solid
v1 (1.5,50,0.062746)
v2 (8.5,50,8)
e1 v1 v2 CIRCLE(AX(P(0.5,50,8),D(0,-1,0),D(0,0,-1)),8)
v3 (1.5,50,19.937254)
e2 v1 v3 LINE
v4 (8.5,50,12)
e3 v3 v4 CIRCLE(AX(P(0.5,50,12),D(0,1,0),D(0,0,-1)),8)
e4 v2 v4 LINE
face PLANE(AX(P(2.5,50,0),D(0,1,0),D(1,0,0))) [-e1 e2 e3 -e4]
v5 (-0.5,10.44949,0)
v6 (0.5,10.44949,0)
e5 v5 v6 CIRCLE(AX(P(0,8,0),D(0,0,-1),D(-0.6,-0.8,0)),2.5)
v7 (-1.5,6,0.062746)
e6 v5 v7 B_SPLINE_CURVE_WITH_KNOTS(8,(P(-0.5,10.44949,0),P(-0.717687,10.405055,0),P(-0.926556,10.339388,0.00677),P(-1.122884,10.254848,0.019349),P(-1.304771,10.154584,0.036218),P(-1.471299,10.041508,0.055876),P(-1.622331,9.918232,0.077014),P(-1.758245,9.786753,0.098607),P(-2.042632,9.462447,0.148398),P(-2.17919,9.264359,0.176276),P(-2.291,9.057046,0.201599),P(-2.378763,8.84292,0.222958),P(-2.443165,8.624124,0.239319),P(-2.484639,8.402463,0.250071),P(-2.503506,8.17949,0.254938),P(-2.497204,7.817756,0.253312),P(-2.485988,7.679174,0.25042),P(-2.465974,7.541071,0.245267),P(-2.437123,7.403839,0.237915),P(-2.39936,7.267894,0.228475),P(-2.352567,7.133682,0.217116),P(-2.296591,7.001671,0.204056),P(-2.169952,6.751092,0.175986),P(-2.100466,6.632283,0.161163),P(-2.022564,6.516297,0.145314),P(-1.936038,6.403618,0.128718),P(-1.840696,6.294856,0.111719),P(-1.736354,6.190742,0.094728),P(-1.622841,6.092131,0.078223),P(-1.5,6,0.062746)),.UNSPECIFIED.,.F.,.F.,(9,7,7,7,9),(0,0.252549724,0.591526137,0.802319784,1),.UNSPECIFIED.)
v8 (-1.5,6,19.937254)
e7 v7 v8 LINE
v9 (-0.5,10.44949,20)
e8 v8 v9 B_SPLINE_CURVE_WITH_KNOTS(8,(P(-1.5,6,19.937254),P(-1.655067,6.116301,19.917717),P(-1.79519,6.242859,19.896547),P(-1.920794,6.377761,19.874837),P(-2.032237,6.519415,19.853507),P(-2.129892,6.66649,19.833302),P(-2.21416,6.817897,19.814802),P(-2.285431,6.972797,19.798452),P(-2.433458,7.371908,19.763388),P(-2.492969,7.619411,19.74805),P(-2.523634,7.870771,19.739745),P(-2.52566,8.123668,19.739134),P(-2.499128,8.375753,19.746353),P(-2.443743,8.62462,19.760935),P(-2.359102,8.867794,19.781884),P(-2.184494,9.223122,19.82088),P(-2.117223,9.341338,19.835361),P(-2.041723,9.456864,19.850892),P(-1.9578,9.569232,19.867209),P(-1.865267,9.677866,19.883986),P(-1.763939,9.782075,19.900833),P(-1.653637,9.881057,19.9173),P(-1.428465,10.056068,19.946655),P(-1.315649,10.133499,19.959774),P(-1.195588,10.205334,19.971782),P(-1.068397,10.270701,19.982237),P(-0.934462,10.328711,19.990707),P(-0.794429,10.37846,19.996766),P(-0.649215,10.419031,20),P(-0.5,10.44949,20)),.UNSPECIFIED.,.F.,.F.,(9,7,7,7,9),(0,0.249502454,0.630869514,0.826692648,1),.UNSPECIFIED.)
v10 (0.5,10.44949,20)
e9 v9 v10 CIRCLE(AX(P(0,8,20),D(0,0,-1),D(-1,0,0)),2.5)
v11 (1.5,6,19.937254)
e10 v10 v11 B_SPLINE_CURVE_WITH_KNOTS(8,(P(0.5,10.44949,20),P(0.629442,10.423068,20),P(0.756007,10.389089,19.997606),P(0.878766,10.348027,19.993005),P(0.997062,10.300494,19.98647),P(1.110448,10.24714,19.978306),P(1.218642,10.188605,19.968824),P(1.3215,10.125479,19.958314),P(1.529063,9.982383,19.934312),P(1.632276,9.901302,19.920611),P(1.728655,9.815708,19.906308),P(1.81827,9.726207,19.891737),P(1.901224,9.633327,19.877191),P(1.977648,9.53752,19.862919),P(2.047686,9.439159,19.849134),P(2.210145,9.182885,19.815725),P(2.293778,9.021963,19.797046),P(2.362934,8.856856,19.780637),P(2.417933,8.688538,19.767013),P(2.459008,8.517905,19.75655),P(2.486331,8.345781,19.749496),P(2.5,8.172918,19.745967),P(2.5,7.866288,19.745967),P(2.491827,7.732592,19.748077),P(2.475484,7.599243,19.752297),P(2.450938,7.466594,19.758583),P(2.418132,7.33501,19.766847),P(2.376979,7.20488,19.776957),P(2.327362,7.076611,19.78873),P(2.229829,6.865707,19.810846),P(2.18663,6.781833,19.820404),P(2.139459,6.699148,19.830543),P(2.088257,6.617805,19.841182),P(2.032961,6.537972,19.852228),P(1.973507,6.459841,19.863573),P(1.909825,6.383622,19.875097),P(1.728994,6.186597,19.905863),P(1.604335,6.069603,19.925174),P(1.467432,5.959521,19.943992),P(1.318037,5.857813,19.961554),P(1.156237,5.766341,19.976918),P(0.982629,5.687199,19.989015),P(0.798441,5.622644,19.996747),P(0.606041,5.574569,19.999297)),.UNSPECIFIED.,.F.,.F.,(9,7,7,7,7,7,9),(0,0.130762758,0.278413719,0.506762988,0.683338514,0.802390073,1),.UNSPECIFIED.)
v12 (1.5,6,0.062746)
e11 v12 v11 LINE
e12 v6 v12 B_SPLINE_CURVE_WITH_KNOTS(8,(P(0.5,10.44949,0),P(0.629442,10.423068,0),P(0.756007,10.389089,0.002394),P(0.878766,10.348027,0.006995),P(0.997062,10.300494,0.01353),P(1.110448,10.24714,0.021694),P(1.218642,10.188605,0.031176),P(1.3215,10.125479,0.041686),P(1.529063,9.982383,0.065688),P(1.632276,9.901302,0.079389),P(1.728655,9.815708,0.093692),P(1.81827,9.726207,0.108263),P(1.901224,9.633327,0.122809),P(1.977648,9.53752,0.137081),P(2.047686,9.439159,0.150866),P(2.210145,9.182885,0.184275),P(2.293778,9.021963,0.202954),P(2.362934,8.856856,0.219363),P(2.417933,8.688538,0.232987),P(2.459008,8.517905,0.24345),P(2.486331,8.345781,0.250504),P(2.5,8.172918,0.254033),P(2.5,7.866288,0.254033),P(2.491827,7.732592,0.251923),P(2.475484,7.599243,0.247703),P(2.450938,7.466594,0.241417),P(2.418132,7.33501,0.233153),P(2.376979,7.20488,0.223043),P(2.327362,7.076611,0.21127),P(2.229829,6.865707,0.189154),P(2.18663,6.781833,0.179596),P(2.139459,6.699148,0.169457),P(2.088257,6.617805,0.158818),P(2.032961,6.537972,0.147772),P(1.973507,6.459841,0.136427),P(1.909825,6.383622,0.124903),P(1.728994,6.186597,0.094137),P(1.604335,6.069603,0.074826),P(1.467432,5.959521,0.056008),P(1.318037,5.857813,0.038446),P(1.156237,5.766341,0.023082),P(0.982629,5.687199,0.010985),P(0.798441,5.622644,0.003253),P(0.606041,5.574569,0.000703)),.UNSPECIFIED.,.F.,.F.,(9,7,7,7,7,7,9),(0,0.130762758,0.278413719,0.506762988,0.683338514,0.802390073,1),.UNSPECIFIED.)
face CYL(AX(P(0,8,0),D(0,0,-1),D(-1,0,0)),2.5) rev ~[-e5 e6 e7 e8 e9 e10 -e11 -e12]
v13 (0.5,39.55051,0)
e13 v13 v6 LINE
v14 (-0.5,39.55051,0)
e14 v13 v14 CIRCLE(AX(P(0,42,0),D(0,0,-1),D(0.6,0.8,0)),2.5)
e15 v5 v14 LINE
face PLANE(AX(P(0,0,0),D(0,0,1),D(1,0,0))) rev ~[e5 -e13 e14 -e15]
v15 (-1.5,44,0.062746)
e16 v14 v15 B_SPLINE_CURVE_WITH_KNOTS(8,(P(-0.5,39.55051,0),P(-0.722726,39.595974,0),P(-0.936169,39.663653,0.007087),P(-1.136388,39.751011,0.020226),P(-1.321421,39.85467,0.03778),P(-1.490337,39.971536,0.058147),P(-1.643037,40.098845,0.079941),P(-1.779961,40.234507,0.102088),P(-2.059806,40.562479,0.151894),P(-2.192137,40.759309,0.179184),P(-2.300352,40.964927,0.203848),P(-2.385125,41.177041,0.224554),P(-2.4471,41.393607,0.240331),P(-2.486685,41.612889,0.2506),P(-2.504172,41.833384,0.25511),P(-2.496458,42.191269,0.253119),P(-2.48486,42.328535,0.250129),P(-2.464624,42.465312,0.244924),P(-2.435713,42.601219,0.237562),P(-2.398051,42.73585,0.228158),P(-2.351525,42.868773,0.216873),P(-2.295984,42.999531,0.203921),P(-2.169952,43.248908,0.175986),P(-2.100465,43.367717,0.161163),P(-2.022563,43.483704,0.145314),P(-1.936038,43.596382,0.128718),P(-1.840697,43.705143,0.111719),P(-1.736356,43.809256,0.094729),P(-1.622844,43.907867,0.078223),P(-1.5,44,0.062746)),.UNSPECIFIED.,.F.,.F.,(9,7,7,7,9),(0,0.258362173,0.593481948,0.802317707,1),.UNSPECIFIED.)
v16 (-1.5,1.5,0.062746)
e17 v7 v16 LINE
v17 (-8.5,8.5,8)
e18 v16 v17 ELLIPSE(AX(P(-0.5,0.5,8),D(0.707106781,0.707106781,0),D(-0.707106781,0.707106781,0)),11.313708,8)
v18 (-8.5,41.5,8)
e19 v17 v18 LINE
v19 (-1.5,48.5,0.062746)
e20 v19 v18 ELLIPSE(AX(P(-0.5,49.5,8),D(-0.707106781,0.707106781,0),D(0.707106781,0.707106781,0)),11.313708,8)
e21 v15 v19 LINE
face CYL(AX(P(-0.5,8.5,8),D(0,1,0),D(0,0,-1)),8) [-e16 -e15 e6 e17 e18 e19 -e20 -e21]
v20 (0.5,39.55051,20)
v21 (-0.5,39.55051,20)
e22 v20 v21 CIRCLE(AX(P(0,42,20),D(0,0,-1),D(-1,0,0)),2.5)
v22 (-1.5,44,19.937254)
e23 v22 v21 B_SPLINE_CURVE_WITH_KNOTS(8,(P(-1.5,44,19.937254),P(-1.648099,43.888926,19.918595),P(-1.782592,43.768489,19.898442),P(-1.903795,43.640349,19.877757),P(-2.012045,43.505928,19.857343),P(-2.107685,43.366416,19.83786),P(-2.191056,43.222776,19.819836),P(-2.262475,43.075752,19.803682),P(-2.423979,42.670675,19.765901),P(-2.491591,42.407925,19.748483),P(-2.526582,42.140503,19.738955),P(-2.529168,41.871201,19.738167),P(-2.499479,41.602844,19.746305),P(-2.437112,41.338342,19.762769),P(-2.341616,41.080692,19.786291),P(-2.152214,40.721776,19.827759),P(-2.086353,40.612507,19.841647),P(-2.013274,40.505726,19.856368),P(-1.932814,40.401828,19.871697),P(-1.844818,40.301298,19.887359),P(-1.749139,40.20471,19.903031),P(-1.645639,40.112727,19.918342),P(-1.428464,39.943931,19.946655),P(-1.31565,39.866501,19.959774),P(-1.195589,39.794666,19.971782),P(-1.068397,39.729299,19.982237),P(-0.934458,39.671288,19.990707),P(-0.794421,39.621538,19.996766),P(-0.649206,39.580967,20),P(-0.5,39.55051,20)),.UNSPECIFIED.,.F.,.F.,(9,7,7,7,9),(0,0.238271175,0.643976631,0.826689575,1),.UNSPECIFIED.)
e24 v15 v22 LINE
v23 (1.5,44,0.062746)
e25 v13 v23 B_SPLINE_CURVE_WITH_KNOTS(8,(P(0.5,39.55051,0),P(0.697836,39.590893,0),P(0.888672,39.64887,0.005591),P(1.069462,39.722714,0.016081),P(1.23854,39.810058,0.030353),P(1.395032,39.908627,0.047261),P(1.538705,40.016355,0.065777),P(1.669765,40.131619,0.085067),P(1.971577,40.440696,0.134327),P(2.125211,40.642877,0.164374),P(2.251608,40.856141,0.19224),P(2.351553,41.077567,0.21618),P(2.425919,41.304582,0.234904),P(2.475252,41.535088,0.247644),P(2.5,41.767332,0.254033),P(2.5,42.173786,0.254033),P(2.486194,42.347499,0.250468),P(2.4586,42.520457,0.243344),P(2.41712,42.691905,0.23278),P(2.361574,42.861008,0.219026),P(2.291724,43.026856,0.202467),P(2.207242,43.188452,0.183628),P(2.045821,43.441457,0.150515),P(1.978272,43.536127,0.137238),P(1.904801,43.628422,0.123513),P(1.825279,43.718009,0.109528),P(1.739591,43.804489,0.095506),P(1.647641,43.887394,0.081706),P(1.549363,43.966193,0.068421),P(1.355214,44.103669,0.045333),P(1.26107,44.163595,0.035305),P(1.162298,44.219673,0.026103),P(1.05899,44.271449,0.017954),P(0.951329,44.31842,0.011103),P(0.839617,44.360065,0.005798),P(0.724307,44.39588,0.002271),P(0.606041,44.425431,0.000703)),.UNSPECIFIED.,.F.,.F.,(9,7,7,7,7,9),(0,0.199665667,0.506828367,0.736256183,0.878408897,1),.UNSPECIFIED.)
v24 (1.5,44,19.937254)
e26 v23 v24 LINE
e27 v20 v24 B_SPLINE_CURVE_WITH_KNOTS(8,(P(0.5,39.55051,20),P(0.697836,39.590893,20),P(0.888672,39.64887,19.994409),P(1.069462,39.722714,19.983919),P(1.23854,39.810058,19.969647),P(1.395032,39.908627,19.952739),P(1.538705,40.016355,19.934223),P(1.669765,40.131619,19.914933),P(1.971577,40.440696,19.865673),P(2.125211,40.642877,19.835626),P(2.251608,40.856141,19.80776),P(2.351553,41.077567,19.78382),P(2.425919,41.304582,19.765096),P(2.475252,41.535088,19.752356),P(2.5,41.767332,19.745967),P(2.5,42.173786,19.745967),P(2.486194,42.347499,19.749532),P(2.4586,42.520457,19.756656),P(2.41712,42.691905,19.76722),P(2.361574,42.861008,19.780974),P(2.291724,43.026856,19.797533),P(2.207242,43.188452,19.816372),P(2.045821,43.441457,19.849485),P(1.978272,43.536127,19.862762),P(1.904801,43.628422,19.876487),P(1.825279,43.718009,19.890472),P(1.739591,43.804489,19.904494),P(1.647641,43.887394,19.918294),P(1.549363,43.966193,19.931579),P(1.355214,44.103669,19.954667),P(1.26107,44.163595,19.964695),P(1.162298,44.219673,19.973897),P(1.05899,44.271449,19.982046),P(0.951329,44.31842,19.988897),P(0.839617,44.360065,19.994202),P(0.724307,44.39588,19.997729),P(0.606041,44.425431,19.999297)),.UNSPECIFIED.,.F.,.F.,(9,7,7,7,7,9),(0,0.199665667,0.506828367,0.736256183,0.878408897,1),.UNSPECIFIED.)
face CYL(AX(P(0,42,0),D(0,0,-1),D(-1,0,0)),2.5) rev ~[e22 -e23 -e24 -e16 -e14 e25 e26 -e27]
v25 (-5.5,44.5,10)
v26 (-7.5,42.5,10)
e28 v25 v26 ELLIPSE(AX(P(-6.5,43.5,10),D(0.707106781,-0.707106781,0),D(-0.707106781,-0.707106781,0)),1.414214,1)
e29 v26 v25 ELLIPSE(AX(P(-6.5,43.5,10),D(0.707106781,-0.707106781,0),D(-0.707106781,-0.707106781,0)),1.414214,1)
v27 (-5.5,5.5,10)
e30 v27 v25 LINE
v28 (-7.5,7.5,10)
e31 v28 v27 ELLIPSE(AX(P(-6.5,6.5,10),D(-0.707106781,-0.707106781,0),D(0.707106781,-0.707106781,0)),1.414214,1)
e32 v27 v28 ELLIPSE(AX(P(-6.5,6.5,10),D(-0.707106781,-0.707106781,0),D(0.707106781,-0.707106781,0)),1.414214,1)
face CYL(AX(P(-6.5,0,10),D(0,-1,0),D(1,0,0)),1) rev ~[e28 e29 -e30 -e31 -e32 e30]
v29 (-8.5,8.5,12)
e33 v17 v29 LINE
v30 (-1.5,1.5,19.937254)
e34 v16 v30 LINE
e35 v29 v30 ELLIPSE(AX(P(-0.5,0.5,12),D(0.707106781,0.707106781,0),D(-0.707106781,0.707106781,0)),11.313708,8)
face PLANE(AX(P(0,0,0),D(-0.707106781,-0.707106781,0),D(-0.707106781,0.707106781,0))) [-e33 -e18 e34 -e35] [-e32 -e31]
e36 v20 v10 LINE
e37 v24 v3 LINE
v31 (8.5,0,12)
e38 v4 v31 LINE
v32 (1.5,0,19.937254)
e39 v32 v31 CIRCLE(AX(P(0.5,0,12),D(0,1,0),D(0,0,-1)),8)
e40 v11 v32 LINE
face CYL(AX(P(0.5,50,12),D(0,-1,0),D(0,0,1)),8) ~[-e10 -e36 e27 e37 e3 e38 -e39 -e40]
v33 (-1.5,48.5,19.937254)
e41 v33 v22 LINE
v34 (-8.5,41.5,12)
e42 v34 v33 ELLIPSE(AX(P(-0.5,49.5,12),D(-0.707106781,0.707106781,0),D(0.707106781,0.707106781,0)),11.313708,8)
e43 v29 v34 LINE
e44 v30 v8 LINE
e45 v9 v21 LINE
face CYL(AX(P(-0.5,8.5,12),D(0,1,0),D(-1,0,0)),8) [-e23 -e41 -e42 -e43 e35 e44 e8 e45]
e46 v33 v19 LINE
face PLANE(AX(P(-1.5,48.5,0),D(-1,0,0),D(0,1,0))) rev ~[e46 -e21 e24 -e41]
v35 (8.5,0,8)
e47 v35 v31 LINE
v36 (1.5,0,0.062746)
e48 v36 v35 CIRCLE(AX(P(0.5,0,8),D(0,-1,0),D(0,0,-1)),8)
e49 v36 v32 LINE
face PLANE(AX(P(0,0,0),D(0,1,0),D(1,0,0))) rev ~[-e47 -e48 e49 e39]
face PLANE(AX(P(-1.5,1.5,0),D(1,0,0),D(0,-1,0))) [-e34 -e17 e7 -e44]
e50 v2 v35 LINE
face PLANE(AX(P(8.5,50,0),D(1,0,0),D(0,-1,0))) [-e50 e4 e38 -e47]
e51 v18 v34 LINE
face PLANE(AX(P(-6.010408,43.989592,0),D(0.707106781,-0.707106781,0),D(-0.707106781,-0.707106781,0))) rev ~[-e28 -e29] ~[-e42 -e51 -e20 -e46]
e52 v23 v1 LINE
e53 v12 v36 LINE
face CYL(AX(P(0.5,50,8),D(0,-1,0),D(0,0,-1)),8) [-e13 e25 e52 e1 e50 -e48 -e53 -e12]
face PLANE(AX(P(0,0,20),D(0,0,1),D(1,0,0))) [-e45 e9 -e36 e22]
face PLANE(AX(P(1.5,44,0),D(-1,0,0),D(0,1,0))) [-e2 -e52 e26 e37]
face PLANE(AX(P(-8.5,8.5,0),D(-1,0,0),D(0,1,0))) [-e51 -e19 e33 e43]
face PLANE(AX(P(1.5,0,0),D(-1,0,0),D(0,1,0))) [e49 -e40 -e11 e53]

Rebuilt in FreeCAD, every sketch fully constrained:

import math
import FreeCAD as App
import Part
import Sketcher
from FreeCAD import Vector


def edges_at(feature, points):
    """Names of the edges that pass closest to the given points."""
    edges = feature.Shape.Edges
    near = lambda p: min(range(len(edges)), key=lambda i: edges[i].distToShape(Part.Vertex(*p))[0])
    return sorted({f"Edge{near(p) + 1}" for p in points})

doc = App.newDocument("Part")
body = doc.addObject("PartDesign::Body", "Body")

sketch1 = body.newObject("Sketcher::SketchObject", "Sketch")
sketch1.AttachmentSupport = (doc.getObject("XY_Plane"), [""])
sketch1.MapMode = "FlatFace"
sketch1.addGeometry([
    Part.LineSegment(Vector(0, 0, 0), Vector(8, 0, 0)),
    Part.LineSegment(Vector(8, 0, 0), Vector(8, 50, 0)),
    Part.LineSegment(Vector(8, 50, 0), Vector(0, 50, 0)),
    Part.LineSegment(Vector(0, 50, 0), Vector(-8, 42, 0)),
    Part.LineSegment(Vector(-8, 42, 0), Vector(-8, 8, 0)),
    Part.LineSegment(Vector(-8, 8, 0), Vector(0, 0, 0)),
], False)
sketch1.addConstraint([
    Sketcher.Constraint("Coincident", 0, 2, 1, 1),
    Sketcher.Constraint("Coincident", 1, 2, 2, 1),
    Sketcher.Constraint("Coincident", 2, 2, 3, 1),
    Sketcher.Constraint("Coincident", 3, 2, 4, 1),
    Sketcher.Constraint("Coincident", 4, 2, 5, 1),
    Sketcher.Constraint("Coincident", 5, 2, 0, 1),
    Sketcher.Constraint("Horizontal", 0),
    Sketcher.Constraint("Vertical", 1),
    Sketcher.Constraint("Horizontal", 2),
    Sketcher.Constraint("Vertical", 4),
    Sketcher.Constraint("Coincident", 5, 2, -1, 1),
    Sketcher.Constraint("PointOnObject", 2, 2, -2),
    Sketcher.Constraint("Perpendicular", 3, 5),
    Sketcher.Constraint("Equal", 3, 5),
    Sketcher.Constraint("DistanceY", 1, 1, 1, 2, 50.0),
    Sketcher.Constraint("DistanceX", 3, 2, 1, 2, 17.0),
    Sketcher.Constraint("DistanceY", 4, 2, 4, 1, 33.0),
])
pad1 = body.newObject("PartDesign::Pad", "Pad")
pad1.Profile = sketch1
pad1.Length = 20

sketch2 = body.newObject("Sketcher::SketchObject", "Sketch001")
sketch2.AttachmentSupport = (doc.getObject("XY_Plane"), [""])
sketch2.MapMode = "FlatFace"
sketch2.addGeometry([
    Part.LineSegment(Vector(1.5, 0, 0), Vector(-1.5, 0, 0)),
    Part.LineSegment(Vector(-1.5, 0, 0), Vector(-1.5, 6, 0)),
    Part.ArcOfCircle(Part.Circle(Vector(0, 8, 0), Vector(0, 0, 1), 2.5), math.radians(-53), math.radians(233)),
    Part.LineSegment(Vector(1.5, 6, 0), Vector(1.5, 0, 0)),
    Part.LineSegment(Vector(-1.5, 50, 0), Vector(1.5, 50, 0)),
    Part.LineSegment(Vector(1.5, 50, 0), Vector(1.5, 44, 0)),
    Part.ArcOfCircle(Part.Circle(Vector(0, 42, 0), Vector(0, 0, 1), 2.5), math.radians(127), math.radians(413)),
    Part.LineSegment(Vector(-1.5, 44, 0), Vector(-1.5, 50, 0)),
], False)
sketch2.addConstraint([
    Sketcher.Constraint("Coincident", 0, 2, 1, 1),
    Sketcher.Constraint("Coincident", 1, 2, 2, 2),
    Sketcher.Constraint("Coincident", 2, 1, 3, 1),
    Sketcher.Constraint("Coincident", 3, 2, 0, 1),
    Sketcher.Constraint("Coincident", 4, 2, 5, 1),
    Sketcher.Constraint("Coincident", 5, 2, 6, 2),
    Sketcher.Constraint("Coincident", 6, 1, 7, 1),
    Sketcher.Constraint("Coincident", 7, 2, 4, 1),
    Sketcher.Constraint("Horizontal", 0),
    Sketcher.Constraint("Vertical", 1),
    Sketcher.Constraint("Vertical", 3),
    Sketcher.Constraint("Horizontal", 4),
    Sketcher.Constraint("Vertical", 5),
    Sketcher.Constraint("Vertical", 7),
    Sketcher.Constraint("Equal", 2, 6),
    Sketcher.Constraint("Symmetric", 0, 2, 3, 2, -1, 1),
    Sketcher.Constraint("Symmetric", 5, 2, 6, 1, -2),
    Sketcher.Constraint("PointOnObject", 2, 3, -2),
    Sketcher.Constraint("Vertical", 3, 2, 4, 2),
    Sketcher.Constraint("Equal", 3, 5),
    Sketcher.Constraint("Radius", 2, 2.5),
    Sketcher.Constraint("DistanceX", 0, 2, 0, 1, 3.0),
    Sketcher.Constraint("DistanceY", -1, 1, 2, 3, 8.0),
    Sketcher.Constraint("DistanceY", -1, 1, 6, 3, 42.0),
])
pocket1 = body.newObject("PartDesign::Pocket", "Pocket")
pocket1.Profile = sketch2
pocket1.Type = "ThroughAll"
pocket1.Reversed = True
doc.recompute()

fillet = body.newObject("PartDesign::Fillet", "Fillet")
fillet.Base = (pocket1, edges_at(pocket1, [
    (8.5, 25, 0),
    (8.5, 25, 20),
    (-8.5, 25, 0),
    (-8.5, 25, 20),
]))
fillet.Radius = 8

sketch3 = body.newObject("Sketcher::SketchObject", "Sketch002")
sketch3.AttachmentSupport = (doc.getObject("XZ_Plane"), [""])
sketch3.MapMode = "FlatFace"
sketch3.addGeometry(Part.Circle(Vector(-6.5, 10, 0), Vector(0, 0, 1), 1), False)
sketch3.addConstraint([
    Sketcher.Constraint("Diameter", 0, 2.0),
    Sketcher.Constraint("DistanceY", -1, 1, 0, 3, 10.0),
    Sketcher.Constraint("DistanceX", 0, 3, -1, 1, 6.5),
])
pocket2 = body.newObject("PartDesign::Pocket", "Pocket001")
pocket2.Profile = sketch3
pocket2.Type = "ThroughAll"

doc.recompute()
